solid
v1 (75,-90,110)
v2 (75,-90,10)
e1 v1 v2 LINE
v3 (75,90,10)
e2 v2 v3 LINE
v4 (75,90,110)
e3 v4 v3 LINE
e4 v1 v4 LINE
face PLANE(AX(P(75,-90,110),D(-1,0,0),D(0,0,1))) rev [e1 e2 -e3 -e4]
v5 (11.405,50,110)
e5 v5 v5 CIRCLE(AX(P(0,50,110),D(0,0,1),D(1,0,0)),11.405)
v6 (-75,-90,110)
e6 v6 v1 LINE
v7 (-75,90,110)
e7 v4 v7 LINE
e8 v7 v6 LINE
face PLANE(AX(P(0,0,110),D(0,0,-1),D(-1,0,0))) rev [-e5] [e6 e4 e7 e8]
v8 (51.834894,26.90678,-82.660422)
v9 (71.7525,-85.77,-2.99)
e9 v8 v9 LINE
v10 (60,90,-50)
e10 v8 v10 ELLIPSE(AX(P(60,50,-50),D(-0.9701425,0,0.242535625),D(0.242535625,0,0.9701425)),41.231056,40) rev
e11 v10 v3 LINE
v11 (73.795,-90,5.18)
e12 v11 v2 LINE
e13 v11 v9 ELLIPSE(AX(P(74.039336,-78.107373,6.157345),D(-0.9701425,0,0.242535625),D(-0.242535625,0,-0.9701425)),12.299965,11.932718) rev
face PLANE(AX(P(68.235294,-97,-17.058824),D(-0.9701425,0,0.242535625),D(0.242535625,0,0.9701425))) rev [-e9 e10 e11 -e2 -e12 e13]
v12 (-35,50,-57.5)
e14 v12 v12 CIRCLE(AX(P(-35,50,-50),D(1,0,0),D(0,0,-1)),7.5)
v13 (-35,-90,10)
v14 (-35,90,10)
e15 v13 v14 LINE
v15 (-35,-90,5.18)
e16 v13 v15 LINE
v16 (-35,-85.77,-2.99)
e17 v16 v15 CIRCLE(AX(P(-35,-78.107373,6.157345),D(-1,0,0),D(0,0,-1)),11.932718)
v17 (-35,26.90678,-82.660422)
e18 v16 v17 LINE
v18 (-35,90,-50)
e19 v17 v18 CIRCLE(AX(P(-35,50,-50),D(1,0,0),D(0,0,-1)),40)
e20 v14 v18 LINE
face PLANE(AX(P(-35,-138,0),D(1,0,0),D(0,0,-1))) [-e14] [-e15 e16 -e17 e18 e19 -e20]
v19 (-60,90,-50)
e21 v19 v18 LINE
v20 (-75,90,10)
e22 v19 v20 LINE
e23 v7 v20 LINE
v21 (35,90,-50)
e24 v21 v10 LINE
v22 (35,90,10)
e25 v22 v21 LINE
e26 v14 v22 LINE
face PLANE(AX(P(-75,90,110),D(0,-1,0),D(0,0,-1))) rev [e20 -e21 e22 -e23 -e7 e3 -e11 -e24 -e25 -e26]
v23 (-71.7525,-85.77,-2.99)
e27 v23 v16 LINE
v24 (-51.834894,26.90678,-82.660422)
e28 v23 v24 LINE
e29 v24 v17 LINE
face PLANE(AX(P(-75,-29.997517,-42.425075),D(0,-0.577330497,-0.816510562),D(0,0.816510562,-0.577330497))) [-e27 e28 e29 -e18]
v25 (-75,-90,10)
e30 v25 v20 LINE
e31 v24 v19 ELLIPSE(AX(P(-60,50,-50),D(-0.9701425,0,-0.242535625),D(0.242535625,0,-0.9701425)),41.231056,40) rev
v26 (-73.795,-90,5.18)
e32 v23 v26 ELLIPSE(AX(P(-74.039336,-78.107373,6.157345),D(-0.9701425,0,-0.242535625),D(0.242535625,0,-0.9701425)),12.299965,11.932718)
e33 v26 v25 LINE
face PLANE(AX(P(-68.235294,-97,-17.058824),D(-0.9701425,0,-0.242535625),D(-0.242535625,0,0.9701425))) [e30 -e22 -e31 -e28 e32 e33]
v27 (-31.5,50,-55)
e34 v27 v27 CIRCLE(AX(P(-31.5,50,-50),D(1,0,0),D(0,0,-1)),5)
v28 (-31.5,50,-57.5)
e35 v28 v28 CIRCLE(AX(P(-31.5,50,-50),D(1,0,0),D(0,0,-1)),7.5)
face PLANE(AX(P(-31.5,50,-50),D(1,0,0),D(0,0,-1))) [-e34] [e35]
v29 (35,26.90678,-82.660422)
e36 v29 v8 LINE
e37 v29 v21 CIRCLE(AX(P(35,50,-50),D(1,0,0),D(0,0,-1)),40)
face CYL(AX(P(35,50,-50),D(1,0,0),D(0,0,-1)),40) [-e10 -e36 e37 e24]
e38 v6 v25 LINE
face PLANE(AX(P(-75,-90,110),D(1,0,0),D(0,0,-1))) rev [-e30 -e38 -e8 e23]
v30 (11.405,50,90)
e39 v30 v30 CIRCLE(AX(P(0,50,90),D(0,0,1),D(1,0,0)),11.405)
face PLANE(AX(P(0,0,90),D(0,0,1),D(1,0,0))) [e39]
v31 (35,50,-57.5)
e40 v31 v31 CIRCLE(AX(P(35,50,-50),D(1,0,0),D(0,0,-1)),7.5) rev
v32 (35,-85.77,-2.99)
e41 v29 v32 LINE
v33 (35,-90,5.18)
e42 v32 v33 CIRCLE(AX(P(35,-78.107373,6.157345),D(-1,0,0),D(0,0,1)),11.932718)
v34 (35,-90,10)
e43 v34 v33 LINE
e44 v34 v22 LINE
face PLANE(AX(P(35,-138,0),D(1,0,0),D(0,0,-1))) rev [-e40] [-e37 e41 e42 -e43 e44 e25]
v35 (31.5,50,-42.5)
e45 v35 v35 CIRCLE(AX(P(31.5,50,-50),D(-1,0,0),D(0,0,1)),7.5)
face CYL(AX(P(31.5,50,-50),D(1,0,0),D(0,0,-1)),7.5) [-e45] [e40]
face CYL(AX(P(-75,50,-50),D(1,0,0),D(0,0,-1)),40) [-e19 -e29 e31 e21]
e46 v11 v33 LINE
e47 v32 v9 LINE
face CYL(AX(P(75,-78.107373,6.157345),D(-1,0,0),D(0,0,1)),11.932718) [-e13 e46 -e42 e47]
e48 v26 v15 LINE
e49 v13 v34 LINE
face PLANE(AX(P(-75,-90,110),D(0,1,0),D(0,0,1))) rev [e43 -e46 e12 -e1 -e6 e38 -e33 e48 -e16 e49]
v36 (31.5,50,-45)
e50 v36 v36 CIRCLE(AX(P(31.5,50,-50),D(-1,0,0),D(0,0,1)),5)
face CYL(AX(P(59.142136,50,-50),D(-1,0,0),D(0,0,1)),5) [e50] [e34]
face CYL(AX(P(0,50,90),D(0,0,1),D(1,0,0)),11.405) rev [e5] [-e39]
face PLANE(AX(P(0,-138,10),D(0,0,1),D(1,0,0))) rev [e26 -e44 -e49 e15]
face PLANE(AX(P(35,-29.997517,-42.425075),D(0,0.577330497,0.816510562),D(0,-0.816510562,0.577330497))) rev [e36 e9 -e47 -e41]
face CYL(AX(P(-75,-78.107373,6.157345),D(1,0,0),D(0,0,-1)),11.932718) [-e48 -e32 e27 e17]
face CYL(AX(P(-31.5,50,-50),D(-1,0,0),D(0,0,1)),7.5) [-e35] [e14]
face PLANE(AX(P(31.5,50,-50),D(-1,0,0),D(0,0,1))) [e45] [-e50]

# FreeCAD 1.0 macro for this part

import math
import FreeCAD as App
import Part
import Sketcher
Q = App.Units.Quantity

doc = App.newDocument("Part")
body = doc.addObject("PartDesign::Body", "Body")

# Sketch on XY plane
sketch1 = body.newObject("Sketcher::SketchObject", "Sketch")
sketch1.AttachmentSupport = (doc.getObject("XY_Plane"), [""])
sketch1.MapMode = "FlatFace"
sketch1.addGeometry(Part.LineSegment(App.Vector(-75, 90, 0), App.Vector(-75, -90, 0)), False)
sketch1.addGeometry(Part.LineSegment(App.Vector(-75, -90, 0), App.Vector(75, -90, 0)), False)
sketch1.addGeometry(Part.LineSegment(App.Vector(75, -90, 0), App.Vector(75, 90, 0)), False)
sketch1.addGeometry(Part.LineSegment(App.Vector(75, 90, 0), App.Vector(-75, 90, 0)), False)
sketch1.addConstraint(Sketcher.Constraint("Coincident", 0, 2, 1, 1))
sketch1.addConstraint(Sketcher.Constraint("Coincident", 1, 2, 2, 1))
sketch1.addConstraint(Sketcher.Constraint("Coincident", 2, 2, 3, 1))
sketch1.addConstraint(Sketcher.Constraint("Coincident", 3, 2, 0, 1))
sketch1.addConstraint(Sketcher.Constraint("Vertical", 0))
sketch1.addConstraint(Sketcher.Constraint("Horizontal", 1))
sketch1.addConstraint(Sketcher.Constraint("Vertical", 2))
sketch1.addConstraint(Sketcher.Constraint("Horizontal", 3))
sketch1.addConstraint(Sketcher.Constraint("Symmetric", 0, 2, 2, 2, -1, 1))
sketch1.addConstraint(Sketcher.Constraint("DistanceX", 1, 1, 1, 2, Q("150 mm")))
sketch1.addConstraint(Sketcher.Constraint("DistanceY", 0, 2, 0, 1, Q("180 mm")))
pad1 = body.newObject("PartDesign::Pad", "Pad")
pad1.Profile = sketch1
pad1.Length = 110

# Sketch on XZ plane
sketch2 = body.newObject("Sketcher::SketchObject", "Sketch001")
sketch2.AttachmentSupport = (doc.getObject("XZ_Plane"), [""])
sketch2.MapMode = "FlatFace"
sketch2.AttachmentOffset = App.Placement(App.Vector(0, 0, -90), App.Rotation())
sketch2.addGeometry(Part.LineSegment(App.Vector(35, 10, 0), App.Vector(35, 0, 0)), False)
sketch2.addGeometry(Part.LineSegment(App.Vector(35, 0, 0), App.Vector(-35, 0, 0)), False)
sketch2.addGeometry(Part.LineSegment(App.Vector(-35, 0, 0), App.Vector(-35, 10, 0)), False)
sketch2.addGeometry(Part.LineSegment(App.Vector(-35, 10, 0), App.Vector(35, 10, 0)), False)
sketch2.addConstraint(Sketcher.Constraint("Coincident", 0, 2, 1, 1))
sketch2.addConstraint(Sketcher.Constraint("Coincident", 1, 2, 2, 1))
sketch2.addConstraint(Sketcher.Constraint("Coincident", 2, 2, 3, 1))
sketch2.addConstraint(Sketcher.Constraint("Coincident", 3, 2, 0, 1))
sketch2.addConstraint(Sketcher.Constraint("Vertical", 0))
sketch2.addConstraint(Sketcher.Constraint("Horizontal", 1))
sketch2.addConstraint(Sketcher.Constraint("Vertical", 2))
sketch2.addConstraint(Sketcher.Constraint("Horizontal", 3))
sketch2.addConstraint(Sketcher.Constraint("Symmetric", 0, 2, 1, 2, -1, 1))
sketch2.addConstraint(Sketcher.Constraint("DistanceX", 1, 2, 1, 1, Q("70 mm")))
sketch2.addConstraint(Sketcher.Constraint("DistanceY", 0, 2, 0, 1, Q("10 mm")))
pocket1 = body.newObject("PartDesign::Pocket", "Pocket")
pocket1.Profile = sketch2
pocket1.Length = 228
pocket1.Reversed = True

# Sketch on YZ plane
sketch3 = body.newObject("Sketcher::SketchObject", "Sketch002")
sketch3.AttachmentSupport = (doc.getObject("YZ_Plane"), [""])
sketch3.MapMode = "FlatFace"
sketch3.AttachmentOffset = App.Placement(App.Vector(0, 0, -35), App.Rotation())
sketch3.addGeometry(Part.LineSegment(App.Vector(-85.8, -3, 0), App.Vector(26.9, -82.7, 0)), False)
sketch3.addGeometry(Part.ArcOfCircle(Part.Circle(App.Vector(50, -50, 0), App.Vector(0, 0, 1), 40), math.radians(-125), math.radians(-90)), False)
sketch3.addGeometry(Part.ArcOfCircle(Part.Circle(App.Vector(50, -50, 0), App.Vector(0, 0, 1), 40), math.radians(-90), math.radians(0)), False)
sketch3.addGeometry(Part.LineSegment(App.Vector(90, -50, 0), App.Vector(90, 0, 0)), False)
sketch3.addGeometry(Part.LineSegment(App.Vector(90, 0, 0), App.Vector(-85.8, 0, 0)), False)
sketch3.addGeometry(Part.LineSegment(App.Vector(-85.8, 0, 0), App.Vector(-85.8, -3, 0)), False)
sketch3.addGeometry(Part.ArcOfCircle(Part.Circle(App.Vector(50, -50, 0), App.Vector(0, 0, 1), 5), math.radians(0), math.radians(90)), False)
sketch3.addGeometry(Part.ArcOfCircle(Part.Circle(App.Vector(50, -50, 0), App.Vector(0, 0, 1), 5), math.radians(-90), math.radians(0)), False)
sketch3.addGeometry(Part.ArcOfCircle(Part.Circle(App.Vector(50, -50, 0), App.Vector(0, 0, 1), 5), math.radians(90), math.radians(270)), False)
sketch3.addConstraint(Sketcher.Constraint("Tangent", 0, 2, 1, 1))
sketch3.addConstraint(Sketcher.Constraint("Tangent", 1, 2, 2, 1))
sketch3.addConstraint(Sketcher.Constraint("Tangent", 2, 2, 3, 1))
sketch3.addConstraint(Sketcher.Constraint("Coincident", 3, 2, 4, 1))
sketch3.addConstraint(Sketcher.Constraint("Coincident", 4, 2, 5, 1))
sketch3.addConstraint(Sketcher.Constraint("Coincident", 5, 2, 0, 1))
sketch3.addConstraint(Sketcher.Constraint("Tangent", 6, 1, 7, 2))
sketch3.addConstraint(Sketcher.Constraint("Tangent", 7, 1, 8, 2))
sketch3.addConstraint(Sketcher.Constraint("Tangent", 8, 1, 6, 2))
sketch3.addConstraint(Sketcher.Constraint("Vertical", 3))
sketch3.addConstraint(Sketcher.Constraint("Horizontal", 4))
sketch3.addConstraint(Sketcher.Constraint("Vertical", 5))
sketch3.addConstraint(Sketcher.Constraint("Coincident", 6, 3, 1, 3))
sketch3.addConstraint(Sketcher.Constraint("Equal", 1, 2))
sketch3.addConstraint(Sketcher.Constraint("PointOnObject", 3, 2, -1))
sketch3.addConstraint(Sketcher.Constraint("Horizontal", 2, 2, 6, 1))
sketch3.addConstraint(Sketcher.Constraint("Vertical", 8, 3, 1, 2))
sketch3.addConstraint(Sketcher.Constraint("Vertical", 1, 2, 7, 1))
sketch3.addConstraint(Sketcher.Constraint("Vertical", 7, 1, 8, 1))
sketch3.addConstraint(Sketcher.Constraint("Radius", 1, Q("40 mm")))
sketch3.addConstraint(Sketcher.Constraint("Radius", 6, Q("5 mm")))
sketch3.addConstraint(Sketcher.Constraint("DistanceY", 3, 1, 3, 2, Q("50 mm")))
sketch3.addConstraint(Sketcher.Constraint("DistanceX", -1, 1, 1, 3, Q("50 mm")))
sketch3.addConstraint(Sketcher.Constraint("DistanceX", 4, 2, 4, 1, Q("175.77 mm")))
sketch3.addConstraint(Sketcher.Constraint("DistanceY", 5, 2, 5, 1, Q("2.99 mm")))
pad2 = body.newObject("PartDesign::Pad", "Pad001")
pad2.Profile = sketch3
pad2.Length = 40
pad2.Reversed = True

# Sketch on YZ plane
sketch4 = body.newObject("Sketcher::SketchObject", "Sketch003")
sketch4.AttachmentSupport = (doc.getObject("YZ_Plane"), [""])
sketch4.MapMode = "FlatFace"
sketch4.AttachmentOffset = App.Placement(App.Vector(0, 0, 75), App.Rotation())
sketch4.addGeometry(Part.LineSegment(App.Vector(90, -50, 0), App.Vector(90, 0, 0)), False)
sketch4.addGeometry(Part.LineSegment(App.Vector(90, 0, 0), App.Vector(-85.8, 0, 0)), False)
sketch4.addGeometry(Part.LineSegment(App.Vector(-85.8, 0, 0), App.Vector(-85.8, -3, 0)), False)
sketch4.addGeometry(Part.LineSegment(App.Vector(-85.8, -3, 0), App.Vector(26.9, -82.7, 0)), False)
sketch4.addGeometry(Part.ArcOfCircle(Part.Circle(App.Vector(50, -50, 0), App.Vector(0, 0, 1), 40), math.radians(-125), math.radians(0)), False)
sketch4.addGeometry(Part.Circle(App.Vector(50, -50, 0), App.Vector(0, 0, 1), 5), False)
sketch4.addConstraint(Sketcher.Constraint("Coincident", 0, 2, 1, 1))
sketch4.addConstraint(Sketcher.Constraint("Coincident", 1, 2, 2, 1))
sketch4.addConstraint(Sketcher.Constraint("Coincident", 2, 2, 3, 1))
sketch4.addConstraint(Sketcher.Constraint("Tangent", 3, 2, 4, 1))
sketch4.addConstraint(Sketcher.Constraint("Tangent", 4, 2, 0, 1))
sketch4.addConstraint(Sketcher.Constraint("Vertical", 0))
sketch4.addConstraint(Sketcher.Constraint("Horizontal", 1))
sketch4.addConstraint(Sketcher.Constraint("Vertical", 2))
sketch4.addConstraint(Sketcher.Constraint("Coincident", 5, 3, 4, 3))
sketch4.addConstraint(Sketcher.Constraint("PointOnObject", 0, 2, -1))
sketch4.addConstraint(Sketcher.Constraint("Diameter", 5, Q("10 mm")))
sketch4.addConstraint(Sketcher.Constraint("Radius", 4, Q("40 mm")))
sketch4.addConstraint(Sketcher.Constraint("DistanceY", 0, 1, 0, 2, Q("50 mm")))
sketch4.addConstraint(Sketcher.Constraint("DistanceX", -1, 1, 4, 3, Q("50 mm")))
sketch4.addConstraint(Sketcher.Constraint("DistanceX", 1, 2, 1, 1, Q("175.77 mm")))
sketch4.addConstraint(Sketcher.Constraint("DistanceY", 2, 2, 2, 1, Q("2.99 mm")))
pad3 = body.newObject("PartDesign::Pad", "Pad002")
pad3.Profile = sketch4
pad3.Length = 40
pad3.Reversed = True

# Sketch on YZ plane
sketch5 = body.newObject("Sketcher::SketchObject", "Sketch004")
sketch5.AttachmentSupport = (doc.getObject("YZ_Plane"), [""])
sketch5.MapMode = "FlatFace"
sketch5.AttachmentOffset = App.Placement(App.Vector(0, 0, 75), App.Rotation())
sketch5.addGeometry(Part.LineSegment(App.Vector(-90, 0, 0), App.Vector(-85.8, -3, 0)), False)
sketch5.addGeometry(Part.LineSegment(App.Vector(-85.8, -3, 0), App.Vector(-85.8, 0, 0)), False)
sketch5.addGeometry(Part.LineSegment(App.Vector(-85.8, 0, 0), App.Vector(-90, 0, 0)), False)
sketch5.addConstraint(Sketcher.Constraint("Coincident", 0, 2, 1, 1))
sketch5.addConstraint(Sketcher.Constraint("Coincident", 1, 2, 2, 1))
sketch5.addConstraint(Sketcher.Constraint("Coincident", 2, 2, 0, 1))
sketch5.addConstraint(Sketcher.Constraint("Vertical", 1))
sketch5.addConstraint(Sketcher.Constraint("Horizontal", 2))
sketch5.addConstraint(Sketcher.Constraint("PointOnObject", 1, 2, -1))
sketch5.addConstraint(Sketcher.Constraint("DistanceX", 2, 2, -1, 1, Q("90 mm")))
sketch5.addConstraint(Sketcher.Constraint("DistanceX", 2, 2, 2, 1, Q("4.23 mm")))
sketch5.addConstraint(Sketcher.Constraint("DistanceY", 1, 1, 1, 2, Q("2.99 mm")))
pad4 = body.newObject("PartDesign::Pad", "Pad003")
pad4.Profile = sketch5
pad4.Length = 40
pad4.Reversed = True

# Sketch on YZ plane
sketch6 = body.newObject("Sketcher::SketchObject", "Sketch005")
sketch6.AttachmentSupport = (doc.getObject("YZ_Plane"), [""])
sketch6.MapMode = "FlatFace"
sketch6.AttachmentOffset = App.Placement(App.Vector(0, 0, 35), App.Rotation())
sketch6.addGeometry(Part.LineSegment(App.Vector(-90, 0, 0), App.Vector(-90, 5, 0)), False)
sketch6.addGeometry(Part.ArcOfCircle(Part.Circle(App.Vector(-78, 6, 0), App.Vector(0, 0, 1), 12), math.radians(-175), math.radians(-130)), False)
sketch6.addGeometry(Part.LineSegment(App.Vector(-86, -3, 0), App.Vector(-90, 0, 0)), False)
sketch6.addConstraint(Sketcher.Constraint("Coincident", 0, 2, 1, 1))
sketch6.addConstraint(Sketcher.Constraint("Coincident", 1, 2, 2, 1))
sketch6.addConstraint(Sketcher.Constraint("Coincident", 2, 2, 0, 1))
sketch6.addConstraint(Sketcher.Constraint("Vertical", 0))
sketch6.addConstraint(Sketcher.Constraint("PointOnObject", 2, 2, -1))
sketch6.addConstraint(Sketcher.Constraint("DistanceX", 0, 2, -1, 1, Q("90 mm")))
sketch6.addConstraint(Sketcher.Constraint("DistanceY", 0, 1, 0, 2, Q("5.18 mm")))
sketch6.addConstraint(Sketcher.Constraint("DistanceX", 1, 2, -1, 1, Q("85.77 mm")))
sketch6.addConstraint(Sketcher.Constraint("DistanceY", 1, 2, -1, 1, Q("2.99 mm")))
sketch6.addConstraint(Sketcher.Constraint("Radius", 1, Q("11.932719 mm")))
pocket2 = body.newObject("PartDesign::Pocket", "Pocket001")
pocket2.Profile = sketch6
pocket2.Length = 40
pocket2.Reversed = True

# Sketch on YZ plane
sketch7 = body.newObject("Sketcher::SketchObject", "Sketch006")
sketch7.AttachmentSupport = (doc.getObject("YZ_Plane"), [""])
sketch7.MapMode = "FlatFace"
sketch7.AttachmentOffset = App.Placement(App.Vector(0, 0, -75), App.Rotation())
sketch7.addGeometry(Part.LineSegment(App.Vector(-85.8, -3, 0), App.Vector(-90, 0, 0)), False)
sketch7.addGeometry(Part.LineSegment(App.Vector(-90, 0, 0), App.Vector(-85.8, 0, 0)), False)
sketch7.addGeometry(Part.LineSegment(App.Vector(-85.8, 0, 0), App.Vector(-85.8, -3, 0)), False)
sketch7.addConstraint(Sketcher.Constraint("Coincident", 0, 2, 1, 1))
sketch7.addConstraint(Sketcher.Constraint("Coincident", 1, 2, 2, 1))
sketch7.addConstraint(Sketcher.Constraint("Coincident", 2, 2, 0, 1))
sketch7.addConstraint(Sketcher.Constraint("Horizontal", 1))
sketch7.addConstraint(Sketcher.Constraint("Vertical", 2))
sketch7.addConstraint(Sketcher.Constraint("PointOnObject", 0, 2, -1))
sketch7.addConstraint(Sketcher.Constraint("DistanceX", 0, 2, -1, 1, Q("90 mm")))
sketch7.addConstraint(Sketcher.Constraint("DistanceX", 1, 1, 1, 2, Q("4.23 mm")))
sketch7.addConstraint(Sketcher.Constraint("DistanceY", 2, 2, 2, 1, Q("2.99 mm")))
pad5 = body.newObject("PartDesign::Pad", "Pad004")
pad5.Profile = sketch7
pad5.Length = 40

# Sketch on YZ plane
sketch8 = body.newObject("Sketcher::SketchObject", "Sketch007")
sketch8.AttachmentSupport = (doc.getObject("YZ_Plane"), [""])
sketch8.MapMode = "FlatFace"
sketch8.AttachmentOffset = App.Placement(App.Vector(0, 0, -75), App.Rotation())
sketch8.addGeometry(Part.LineSegment(App.Vector(-90, 5, 0), App.Vector(-90, 0, 0)), False)
sketch8.addGeometry(Part.LineSegment(App.Vector(-90, 0, 0), App.Vector(-86, -3, 0)), False)
sketch8.addGeometry(Part.ArcOfCircle(Part.Circle(App.Vector(-78, 6, 0), App.Vector(0, 0, 1), 12), math.radians(-175), math.radians(-130)), False)
sketch8.addConstraint(Sketcher.Constraint("Coincident", 0, 2, 1, 1))
sketch8.addConstraint(Sketcher.Constraint("Coincident", 1, 2, 2, 2))
sketch8.addConstraint(Sketcher.Constraint("Coincident", 2, 1, 0, 1))
sketch8.addConstraint(Sketcher.Constraint("Vertical", 0))
sketch8.addConstraint(Sketcher.Constraint("PointOnObject", 0, 2, -1))
sketch8.addConstraint(Sketcher.Constraint("DistanceX", 0, 2, -1, 1, Q("90 mm")))
sketch8.addConstraint(Sketcher.Constraint("DistanceY", 0, 2, 0, 1, Q("5.18 mm")))
sketch8.addConstraint(Sketcher.Constraint("DistanceX", 1, 2, -1, 1, Q("85.77 mm")))
sketch8.addConstraint(Sketcher.Constraint("DistanceY", 1, 2, -1, 1, Q("2.99 mm")))
sketch8.addConstraint(Sketcher.Constraint("Radius", 2, Q("11.932719 mm")))
pocket3 = body.newObject("PartDesign::Pocket", "Pocket002")
pocket3.Profile = sketch8
pocket3.Length = 40
pocket3.Reversed = True

# Sketch on YZ plane
sketch9 = body.newObject("Sketcher::SketchObject", "Sketch008")
sketch9.AttachmentSupport = (doc.getObject("YZ_Plane"), [""])
sketch9.MapMode = "FlatFace"
sketch9.AttachmentOffset = App.Placement(App.Vector(0, 0, -45), App.Rotation())
sketch9.addGeometry(Part.Circle(App.Vector(50, -50, 0), App.Vector(0, 0, 1), 5), False)
sketch9.addConstraint(Sketcher.Constraint("Diameter", 0, Q("10 mm")))
sketch9.addConstraint(Sketcher.Constraint("DistanceX", -1, 1, 0, 3, Q("50 mm")))
sketch9.addConstraint(Sketcher.Constraint("DistanceY", 0, 3, -1, 1, Q("50 mm")))
pad6 = body.newObject("PartDesign::Pad", "Pad005")
pad6.Profile = sketch9
pad6.Length = 30
pad6.Reversed = True

# Sketch on YZ plane
sketch10 = body.newObject("Sketcher::SketchObject", "Sketch009")
sketch10.AttachmentSupport = (doc.getObject("YZ_Plane"), [""])
sketch10.MapMode = "FlatFace"
sketch10.AttachmentOffset = App.Placement(App.Vector(0, 0, 75), App.Rotation())
sketch10.addGeometry(Part.Circle(App.Vector(50, -50, 0), App.Vector(0, 0, 1), 5), False)
sketch10.addConstraint(Sketcher.Constraint("Diameter", 0, Q("10 mm")))
sketch10.addConstraint(Sketcher.Constraint("DistanceX", -1, 1, 0, 3, Q("50 mm")))
sketch10.addConstraint(Sketcher.Constraint("DistanceY", 0, 3, -1, 1, Q("50 mm")))
pad7 = body.newObject("PartDesign::Pad", "Pad006")
pad7.Profile = sketch10
pad7.Length = 30
pad7.Reversed = True

# Sketch on XZ plane
sketch11 = body.newObject("Sketcher::SketchObject", "Sketch010")
sketch11.AttachmentSupport = (doc.getObject("XZ_Plane"), [""])
sketch11.MapMode = "FlatFace"
sketch11.AttachmentOffset = App.Placement(App.Vector(0, 0, -90), App.Rotation())
sketch11.addGeometry(Part.LineSegment(App.Vector(-50, -90, 0), App.Vector(-75, -90, 0)), False)
sketch11.addGeometry(Part.LineSegment(App.Vector(-75, -90, 0), App.Vector(-75, 10, 0)), False)
sketch11.addGeometry(Part.LineSegment(App.Vector(-75, 10, 0), App.Vector(-50, -90, 0)), False)
sketch11.addGeometry(Part.LineSegment(App.Vector(75, 10, 0), App.Vector(75, -90, 0)), False)
sketch11.addGeometry(Part.LineSegment(App.Vector(75, -90, 0), App.Vector(50, -90, 0)), False)
sketch11.addGeometry(Part.LineSegment(App.Vector(50, -90, 0), App.Vector(75, 10, 0)), False)
sketch11.addConstraint(Sketcher.Constraint("Coincident", 0, 2, 1, 1))
sketch11.addConstraint(Sketcher.Constraint("Coincident", 1, 2, 2, 1))
sketch11.addConstraint(Sketcher.Constraint("Coincident", 2, 2, 0, 1))
sketch11.addConstraint(Sketcher.Constraint("Coincident", 3, 2, 4, 1))
sketch11.addConstraint(Sketcher.Constraint("Coincident", 4, 2, 5, 1))
sketch11.addConstraint(Sketcher.Constraint("Coincident", 5, 2, 3, 1))
sketch11.addConstraint(Sketcher.Constraint("Horizontal", 0))
sketch11.addConstraint(Sketcher.Constraint("Vertical", 1))
sketch11.addConstraint(Sketcher.Constraint("Vertical", 3))
sketch11.addConstraint(Sketcher.Constraint("Horizontal", 4))
sketch11.addConstraint(Sketcher.Constraint("Symmetric", 0, 2, 3, 2, -2))
sketch11.addConstraint(Sketcher.Constraint("Horizontal", 1, 2, 5, 2))
sketch11.addConstraint(Sketcher.Constraint("Equal", 0, 4))
sketch11.addConstraint(Sketcher.Constraint("DistanceX", 0, 2, 0, 1, Q("25 mm")))
sketch11.addConstraint(Sketcher.Constraint("DistanceY", 1, 1, 1, 2, Q("100 mm")))
sketch11.addConstraint(Sketcher.Constraint("DistanceX", 0, 2, -1, 1, Q("75 mm")))
sketch11.addConstraint(Sketcher.Constraint("DistanceY", 0, 2, -1, 1, Q("90 mm")))
pocket4 = body.newObject("PartDesign::Pocket", "Pocket003")
pocket4.Profile = sketch11
pocket4.Length = 187
pocket4.Reversed = True

# Sketch on YZ plane
sketch12 = body.newObject("Sketcher::SketchObject", "Sketch011")
sketch12.AttachmentSupport = (doc.getObject("YZ_Plane"), [""])
sketch12.MapMode = "FlatFace"
sketch12.AttachmentOffset = App.Placement(App.Vector(0, 0, 45), App.Rotation())
sketch12.addGeometry(Part.Circle(App.Vector(50, -50, 0), App.Vector(0, 0, 1), 5), False)
sketch12.addConstraint(Sketcher.Constraint("Diameter", 0, Q("10 mm")))
sketch12.addConstraint(Sketcher.Constraint("DistanceX", -1, 1, 0, 3, Q("50 mm")))
sketch12.addConstraint(Sketcher.Constraint("DistanceY", 0, 3, -1, 1, Q("50 mm")))
pad8 = body.newObject("PartDesign::Pad", "Pad007")
pad8.Profile = sketch12
pad8.Length = 90
pad8.Reversed = True

# Sketch on YZ plane
sketch13 = body.newObject("Sketcher::SketchObject", "Sketch012")
sketch13.AttachmentSupport = (doc.getObject("YZ_Plane"), [""])
sketch13.MapMode = "FlatFace"
sketch13.AttachmentOffset = App.Placement(App.Vector(0, 0, -31.5), App.Rotation())
sketch13.addGeometry(Part.Circle(App.Vector(50, -50, 0), App.Vector(0, 0, 1), 8), False)
sketch13.addGeometry(Part.Circle(App.Vector(50, -50, 0), App.Vector(0, 0, 1), 5), False)
sketch13.addConstraint(Sketcher.Constraint("Coincident", 1, 3, 0, 3))
sketch13.addConstraint(Sketcher.Constraint("Diameter", 0, Q("15 mm")))
sketch13.addConstraint(Sketcher.Constraint("Diameter", 1, Q("10 mm")))
sketch13.addConstraint(Sketcher.Constraint("DistanceX", -1, 1, 0, 3, Q("50 mm")))
sketch13.addConstraint(Sketcher.Constraint("DistanceY", 0, 3, -1, 1, Q("50 mm")))
pad9 = body.newObject("PartDesign::Pad", "Pad008")
pad9.Profile = sketch13
pad9.Length = 3.5
pad9.Reversed = True

# Sketch on YZ plane
sketch14 = body.newObject("Sketcher::SketchObject", "Sketch013")
sketch14.AttachmentSupport = (doc.getObject("YZ_Plane"), [""])
sketch14.MapMode = "FlatFace"
sketch14.AttachmentOffset = App.Placement(App.Vector(0, 0, 35), App.Rotation())
sketch14.addGeometry(Part.Circle(App.Vector(50, -50, 0), App.Vector(0, 0, 1), 8), False)
sketch14.addGeometry(Part.Circle(App.Vector(50, -50, 0), App.Vector(0, 0, 1), 5), False)
sketch14.addConstraint(Sketcher.Constraint("Coincident", 1, 3, 0, 3))
sketch14.addConstraint(Sketcher.Constraint("Diameter", 0, Q("15 mm")))
sketch14.addConstraint(Sketcher.Constraint("Diameter", 1, Q("10 mm")))
sketch14.addConstraint(Sketcher.Constraint("DistanceX", -1, 1, 0, 3, Q("50 mm")))
sketch14.addConstraint(Sketcher.Constraint("DistanceY", 0, 3, -1, 1, Q("50 mm")))
pad10 = body.newObject("PartDesign::Pad", "Pad009")
pad10.Profile = sketch14
pad10.Length = 3.5
pad10.Reversed = True

# Sketch on XY plane
sketch15 = body.newObject("Sketcher::SketchObject", "Sketch014")
sketch15.AttachmentSupport = (doc.getObject("XY_Plane"), [""])
sketch15.MapMode = "FlatFace"
sketch15.AttachmentOffset = App.Placement(App.Vector(0, 0, 110), App.Rotation())
sketch15.addGeometry(Part.Circle(App.Vector(0, 50, 0), App.Vector(0, 0, 1), 11), False)
sketch15.addConstraint(Sketcher.Constraint("PointOnObject", 0, 3, -2))
sketch15.addConstraint(Sketcher.Constraint("Diameter", 0, Q("22.81 mm")))
sketch15.addConstraint(Sketcher.Constraint("DistanceY", -1, 1, 0, 3, Q("50 mm")))
pocket5 = body.newObject("PartDesign::Pocket", "Pocket004")
pocket5.Profile = sketch15
pocket5.Length = 20

doc.recompute()
